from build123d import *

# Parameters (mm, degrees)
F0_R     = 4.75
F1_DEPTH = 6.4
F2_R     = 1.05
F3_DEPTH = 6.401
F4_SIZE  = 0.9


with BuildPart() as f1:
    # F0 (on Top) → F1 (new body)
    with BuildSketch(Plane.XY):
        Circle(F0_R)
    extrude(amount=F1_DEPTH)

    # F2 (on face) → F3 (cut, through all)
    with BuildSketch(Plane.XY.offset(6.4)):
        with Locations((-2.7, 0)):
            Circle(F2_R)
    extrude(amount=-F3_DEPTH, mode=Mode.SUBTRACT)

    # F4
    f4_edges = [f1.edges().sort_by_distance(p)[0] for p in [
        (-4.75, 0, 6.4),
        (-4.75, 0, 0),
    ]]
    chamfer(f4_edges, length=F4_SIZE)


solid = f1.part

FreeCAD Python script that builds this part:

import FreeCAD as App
import Part
import Sketcher
from FreeCAD import Vector
Q = App.Units.Quantity


def edges_at(feature, points):
    """Names of the edges that pass closest to the given points."""
    edges = feature.Shape.Edges
    near = lambda p: min(range(len(edges)), key=lambda i: edges[i].distToShape(Part.Vertex(*p))[0])
    return sorted({f"Edge{near(p) + 1}" for p in points})

doc = App.newDocument("Part")
body = doc.addObject("PartDesign::Body", "Body")

sketch1 = doc.addObject("Sketcher::SketchObject", "Sketch")
body.addObject(sketch1)
sketch1.AttachmentSupport = (doc.XY_Plane, [""])
sketch1.MapMode = "FlatFace"
sketch1.addGeometry(Part.Circle(Vector(0, 0, 0), Vector(0, 0, 1), 4.8), False)
sketch1.addConstraint([
    Sketcher.Constraint("Coincident", 0, 3, -1, 1),
    Sketcher.Constraint("Diameter", 0, Q("9.5 mm")),
])
pad1 = doc.addObject("PartDesign::Pad", "Pad")
body.addObject(pad1)
pad1.Profile = sketch1
pad1.Length = 6.4

sketch2 = doc.addObject("Sketcher::SketchObject", "Sketch001")
body.addObject(sketch2)
sketch2.AttachmentSupport = (doc.XY_Plane, [""])
sketch2.MapMode = "FlatFace"
sketch2.AttachmentOffset = App.Placement(Vector(0, 0, 6.4), App.Rotation())
sketch2.addGeometry(Part.Circle(Vector(-2.7, 0, 0), Vector(0, 0, 1), 1.1), False)
sketch2.addConstraint([
    Sketcher.Constraint("PointOnObject", 0, 3, -1),
    Sketcher.Constraint("Diameter", 0, Q("2.1 mm")),
    Sketcher.Constraint("DistanceX", 0, 3, -1, 1, Q("2.7 mm")),
])
pocket1 = doc.addObject("PartDesign::Pocket", "Pocket")
body.addObject(pocket1)
pocket1.Profile = sketch2
pocket1.Type = "ThroughAll"
doc.recompute()

chamfer = doc.addObject("PartDesign::Chamfer", "Chamfer")
body.addObject(chamfer)
chamfer.Base = (pocket1, edges_at(pocket1, [(-4.75, 0, 6.4), (-4.75, 0, 0)]))
chamfer.Size = 0.9

doc.recompute()
